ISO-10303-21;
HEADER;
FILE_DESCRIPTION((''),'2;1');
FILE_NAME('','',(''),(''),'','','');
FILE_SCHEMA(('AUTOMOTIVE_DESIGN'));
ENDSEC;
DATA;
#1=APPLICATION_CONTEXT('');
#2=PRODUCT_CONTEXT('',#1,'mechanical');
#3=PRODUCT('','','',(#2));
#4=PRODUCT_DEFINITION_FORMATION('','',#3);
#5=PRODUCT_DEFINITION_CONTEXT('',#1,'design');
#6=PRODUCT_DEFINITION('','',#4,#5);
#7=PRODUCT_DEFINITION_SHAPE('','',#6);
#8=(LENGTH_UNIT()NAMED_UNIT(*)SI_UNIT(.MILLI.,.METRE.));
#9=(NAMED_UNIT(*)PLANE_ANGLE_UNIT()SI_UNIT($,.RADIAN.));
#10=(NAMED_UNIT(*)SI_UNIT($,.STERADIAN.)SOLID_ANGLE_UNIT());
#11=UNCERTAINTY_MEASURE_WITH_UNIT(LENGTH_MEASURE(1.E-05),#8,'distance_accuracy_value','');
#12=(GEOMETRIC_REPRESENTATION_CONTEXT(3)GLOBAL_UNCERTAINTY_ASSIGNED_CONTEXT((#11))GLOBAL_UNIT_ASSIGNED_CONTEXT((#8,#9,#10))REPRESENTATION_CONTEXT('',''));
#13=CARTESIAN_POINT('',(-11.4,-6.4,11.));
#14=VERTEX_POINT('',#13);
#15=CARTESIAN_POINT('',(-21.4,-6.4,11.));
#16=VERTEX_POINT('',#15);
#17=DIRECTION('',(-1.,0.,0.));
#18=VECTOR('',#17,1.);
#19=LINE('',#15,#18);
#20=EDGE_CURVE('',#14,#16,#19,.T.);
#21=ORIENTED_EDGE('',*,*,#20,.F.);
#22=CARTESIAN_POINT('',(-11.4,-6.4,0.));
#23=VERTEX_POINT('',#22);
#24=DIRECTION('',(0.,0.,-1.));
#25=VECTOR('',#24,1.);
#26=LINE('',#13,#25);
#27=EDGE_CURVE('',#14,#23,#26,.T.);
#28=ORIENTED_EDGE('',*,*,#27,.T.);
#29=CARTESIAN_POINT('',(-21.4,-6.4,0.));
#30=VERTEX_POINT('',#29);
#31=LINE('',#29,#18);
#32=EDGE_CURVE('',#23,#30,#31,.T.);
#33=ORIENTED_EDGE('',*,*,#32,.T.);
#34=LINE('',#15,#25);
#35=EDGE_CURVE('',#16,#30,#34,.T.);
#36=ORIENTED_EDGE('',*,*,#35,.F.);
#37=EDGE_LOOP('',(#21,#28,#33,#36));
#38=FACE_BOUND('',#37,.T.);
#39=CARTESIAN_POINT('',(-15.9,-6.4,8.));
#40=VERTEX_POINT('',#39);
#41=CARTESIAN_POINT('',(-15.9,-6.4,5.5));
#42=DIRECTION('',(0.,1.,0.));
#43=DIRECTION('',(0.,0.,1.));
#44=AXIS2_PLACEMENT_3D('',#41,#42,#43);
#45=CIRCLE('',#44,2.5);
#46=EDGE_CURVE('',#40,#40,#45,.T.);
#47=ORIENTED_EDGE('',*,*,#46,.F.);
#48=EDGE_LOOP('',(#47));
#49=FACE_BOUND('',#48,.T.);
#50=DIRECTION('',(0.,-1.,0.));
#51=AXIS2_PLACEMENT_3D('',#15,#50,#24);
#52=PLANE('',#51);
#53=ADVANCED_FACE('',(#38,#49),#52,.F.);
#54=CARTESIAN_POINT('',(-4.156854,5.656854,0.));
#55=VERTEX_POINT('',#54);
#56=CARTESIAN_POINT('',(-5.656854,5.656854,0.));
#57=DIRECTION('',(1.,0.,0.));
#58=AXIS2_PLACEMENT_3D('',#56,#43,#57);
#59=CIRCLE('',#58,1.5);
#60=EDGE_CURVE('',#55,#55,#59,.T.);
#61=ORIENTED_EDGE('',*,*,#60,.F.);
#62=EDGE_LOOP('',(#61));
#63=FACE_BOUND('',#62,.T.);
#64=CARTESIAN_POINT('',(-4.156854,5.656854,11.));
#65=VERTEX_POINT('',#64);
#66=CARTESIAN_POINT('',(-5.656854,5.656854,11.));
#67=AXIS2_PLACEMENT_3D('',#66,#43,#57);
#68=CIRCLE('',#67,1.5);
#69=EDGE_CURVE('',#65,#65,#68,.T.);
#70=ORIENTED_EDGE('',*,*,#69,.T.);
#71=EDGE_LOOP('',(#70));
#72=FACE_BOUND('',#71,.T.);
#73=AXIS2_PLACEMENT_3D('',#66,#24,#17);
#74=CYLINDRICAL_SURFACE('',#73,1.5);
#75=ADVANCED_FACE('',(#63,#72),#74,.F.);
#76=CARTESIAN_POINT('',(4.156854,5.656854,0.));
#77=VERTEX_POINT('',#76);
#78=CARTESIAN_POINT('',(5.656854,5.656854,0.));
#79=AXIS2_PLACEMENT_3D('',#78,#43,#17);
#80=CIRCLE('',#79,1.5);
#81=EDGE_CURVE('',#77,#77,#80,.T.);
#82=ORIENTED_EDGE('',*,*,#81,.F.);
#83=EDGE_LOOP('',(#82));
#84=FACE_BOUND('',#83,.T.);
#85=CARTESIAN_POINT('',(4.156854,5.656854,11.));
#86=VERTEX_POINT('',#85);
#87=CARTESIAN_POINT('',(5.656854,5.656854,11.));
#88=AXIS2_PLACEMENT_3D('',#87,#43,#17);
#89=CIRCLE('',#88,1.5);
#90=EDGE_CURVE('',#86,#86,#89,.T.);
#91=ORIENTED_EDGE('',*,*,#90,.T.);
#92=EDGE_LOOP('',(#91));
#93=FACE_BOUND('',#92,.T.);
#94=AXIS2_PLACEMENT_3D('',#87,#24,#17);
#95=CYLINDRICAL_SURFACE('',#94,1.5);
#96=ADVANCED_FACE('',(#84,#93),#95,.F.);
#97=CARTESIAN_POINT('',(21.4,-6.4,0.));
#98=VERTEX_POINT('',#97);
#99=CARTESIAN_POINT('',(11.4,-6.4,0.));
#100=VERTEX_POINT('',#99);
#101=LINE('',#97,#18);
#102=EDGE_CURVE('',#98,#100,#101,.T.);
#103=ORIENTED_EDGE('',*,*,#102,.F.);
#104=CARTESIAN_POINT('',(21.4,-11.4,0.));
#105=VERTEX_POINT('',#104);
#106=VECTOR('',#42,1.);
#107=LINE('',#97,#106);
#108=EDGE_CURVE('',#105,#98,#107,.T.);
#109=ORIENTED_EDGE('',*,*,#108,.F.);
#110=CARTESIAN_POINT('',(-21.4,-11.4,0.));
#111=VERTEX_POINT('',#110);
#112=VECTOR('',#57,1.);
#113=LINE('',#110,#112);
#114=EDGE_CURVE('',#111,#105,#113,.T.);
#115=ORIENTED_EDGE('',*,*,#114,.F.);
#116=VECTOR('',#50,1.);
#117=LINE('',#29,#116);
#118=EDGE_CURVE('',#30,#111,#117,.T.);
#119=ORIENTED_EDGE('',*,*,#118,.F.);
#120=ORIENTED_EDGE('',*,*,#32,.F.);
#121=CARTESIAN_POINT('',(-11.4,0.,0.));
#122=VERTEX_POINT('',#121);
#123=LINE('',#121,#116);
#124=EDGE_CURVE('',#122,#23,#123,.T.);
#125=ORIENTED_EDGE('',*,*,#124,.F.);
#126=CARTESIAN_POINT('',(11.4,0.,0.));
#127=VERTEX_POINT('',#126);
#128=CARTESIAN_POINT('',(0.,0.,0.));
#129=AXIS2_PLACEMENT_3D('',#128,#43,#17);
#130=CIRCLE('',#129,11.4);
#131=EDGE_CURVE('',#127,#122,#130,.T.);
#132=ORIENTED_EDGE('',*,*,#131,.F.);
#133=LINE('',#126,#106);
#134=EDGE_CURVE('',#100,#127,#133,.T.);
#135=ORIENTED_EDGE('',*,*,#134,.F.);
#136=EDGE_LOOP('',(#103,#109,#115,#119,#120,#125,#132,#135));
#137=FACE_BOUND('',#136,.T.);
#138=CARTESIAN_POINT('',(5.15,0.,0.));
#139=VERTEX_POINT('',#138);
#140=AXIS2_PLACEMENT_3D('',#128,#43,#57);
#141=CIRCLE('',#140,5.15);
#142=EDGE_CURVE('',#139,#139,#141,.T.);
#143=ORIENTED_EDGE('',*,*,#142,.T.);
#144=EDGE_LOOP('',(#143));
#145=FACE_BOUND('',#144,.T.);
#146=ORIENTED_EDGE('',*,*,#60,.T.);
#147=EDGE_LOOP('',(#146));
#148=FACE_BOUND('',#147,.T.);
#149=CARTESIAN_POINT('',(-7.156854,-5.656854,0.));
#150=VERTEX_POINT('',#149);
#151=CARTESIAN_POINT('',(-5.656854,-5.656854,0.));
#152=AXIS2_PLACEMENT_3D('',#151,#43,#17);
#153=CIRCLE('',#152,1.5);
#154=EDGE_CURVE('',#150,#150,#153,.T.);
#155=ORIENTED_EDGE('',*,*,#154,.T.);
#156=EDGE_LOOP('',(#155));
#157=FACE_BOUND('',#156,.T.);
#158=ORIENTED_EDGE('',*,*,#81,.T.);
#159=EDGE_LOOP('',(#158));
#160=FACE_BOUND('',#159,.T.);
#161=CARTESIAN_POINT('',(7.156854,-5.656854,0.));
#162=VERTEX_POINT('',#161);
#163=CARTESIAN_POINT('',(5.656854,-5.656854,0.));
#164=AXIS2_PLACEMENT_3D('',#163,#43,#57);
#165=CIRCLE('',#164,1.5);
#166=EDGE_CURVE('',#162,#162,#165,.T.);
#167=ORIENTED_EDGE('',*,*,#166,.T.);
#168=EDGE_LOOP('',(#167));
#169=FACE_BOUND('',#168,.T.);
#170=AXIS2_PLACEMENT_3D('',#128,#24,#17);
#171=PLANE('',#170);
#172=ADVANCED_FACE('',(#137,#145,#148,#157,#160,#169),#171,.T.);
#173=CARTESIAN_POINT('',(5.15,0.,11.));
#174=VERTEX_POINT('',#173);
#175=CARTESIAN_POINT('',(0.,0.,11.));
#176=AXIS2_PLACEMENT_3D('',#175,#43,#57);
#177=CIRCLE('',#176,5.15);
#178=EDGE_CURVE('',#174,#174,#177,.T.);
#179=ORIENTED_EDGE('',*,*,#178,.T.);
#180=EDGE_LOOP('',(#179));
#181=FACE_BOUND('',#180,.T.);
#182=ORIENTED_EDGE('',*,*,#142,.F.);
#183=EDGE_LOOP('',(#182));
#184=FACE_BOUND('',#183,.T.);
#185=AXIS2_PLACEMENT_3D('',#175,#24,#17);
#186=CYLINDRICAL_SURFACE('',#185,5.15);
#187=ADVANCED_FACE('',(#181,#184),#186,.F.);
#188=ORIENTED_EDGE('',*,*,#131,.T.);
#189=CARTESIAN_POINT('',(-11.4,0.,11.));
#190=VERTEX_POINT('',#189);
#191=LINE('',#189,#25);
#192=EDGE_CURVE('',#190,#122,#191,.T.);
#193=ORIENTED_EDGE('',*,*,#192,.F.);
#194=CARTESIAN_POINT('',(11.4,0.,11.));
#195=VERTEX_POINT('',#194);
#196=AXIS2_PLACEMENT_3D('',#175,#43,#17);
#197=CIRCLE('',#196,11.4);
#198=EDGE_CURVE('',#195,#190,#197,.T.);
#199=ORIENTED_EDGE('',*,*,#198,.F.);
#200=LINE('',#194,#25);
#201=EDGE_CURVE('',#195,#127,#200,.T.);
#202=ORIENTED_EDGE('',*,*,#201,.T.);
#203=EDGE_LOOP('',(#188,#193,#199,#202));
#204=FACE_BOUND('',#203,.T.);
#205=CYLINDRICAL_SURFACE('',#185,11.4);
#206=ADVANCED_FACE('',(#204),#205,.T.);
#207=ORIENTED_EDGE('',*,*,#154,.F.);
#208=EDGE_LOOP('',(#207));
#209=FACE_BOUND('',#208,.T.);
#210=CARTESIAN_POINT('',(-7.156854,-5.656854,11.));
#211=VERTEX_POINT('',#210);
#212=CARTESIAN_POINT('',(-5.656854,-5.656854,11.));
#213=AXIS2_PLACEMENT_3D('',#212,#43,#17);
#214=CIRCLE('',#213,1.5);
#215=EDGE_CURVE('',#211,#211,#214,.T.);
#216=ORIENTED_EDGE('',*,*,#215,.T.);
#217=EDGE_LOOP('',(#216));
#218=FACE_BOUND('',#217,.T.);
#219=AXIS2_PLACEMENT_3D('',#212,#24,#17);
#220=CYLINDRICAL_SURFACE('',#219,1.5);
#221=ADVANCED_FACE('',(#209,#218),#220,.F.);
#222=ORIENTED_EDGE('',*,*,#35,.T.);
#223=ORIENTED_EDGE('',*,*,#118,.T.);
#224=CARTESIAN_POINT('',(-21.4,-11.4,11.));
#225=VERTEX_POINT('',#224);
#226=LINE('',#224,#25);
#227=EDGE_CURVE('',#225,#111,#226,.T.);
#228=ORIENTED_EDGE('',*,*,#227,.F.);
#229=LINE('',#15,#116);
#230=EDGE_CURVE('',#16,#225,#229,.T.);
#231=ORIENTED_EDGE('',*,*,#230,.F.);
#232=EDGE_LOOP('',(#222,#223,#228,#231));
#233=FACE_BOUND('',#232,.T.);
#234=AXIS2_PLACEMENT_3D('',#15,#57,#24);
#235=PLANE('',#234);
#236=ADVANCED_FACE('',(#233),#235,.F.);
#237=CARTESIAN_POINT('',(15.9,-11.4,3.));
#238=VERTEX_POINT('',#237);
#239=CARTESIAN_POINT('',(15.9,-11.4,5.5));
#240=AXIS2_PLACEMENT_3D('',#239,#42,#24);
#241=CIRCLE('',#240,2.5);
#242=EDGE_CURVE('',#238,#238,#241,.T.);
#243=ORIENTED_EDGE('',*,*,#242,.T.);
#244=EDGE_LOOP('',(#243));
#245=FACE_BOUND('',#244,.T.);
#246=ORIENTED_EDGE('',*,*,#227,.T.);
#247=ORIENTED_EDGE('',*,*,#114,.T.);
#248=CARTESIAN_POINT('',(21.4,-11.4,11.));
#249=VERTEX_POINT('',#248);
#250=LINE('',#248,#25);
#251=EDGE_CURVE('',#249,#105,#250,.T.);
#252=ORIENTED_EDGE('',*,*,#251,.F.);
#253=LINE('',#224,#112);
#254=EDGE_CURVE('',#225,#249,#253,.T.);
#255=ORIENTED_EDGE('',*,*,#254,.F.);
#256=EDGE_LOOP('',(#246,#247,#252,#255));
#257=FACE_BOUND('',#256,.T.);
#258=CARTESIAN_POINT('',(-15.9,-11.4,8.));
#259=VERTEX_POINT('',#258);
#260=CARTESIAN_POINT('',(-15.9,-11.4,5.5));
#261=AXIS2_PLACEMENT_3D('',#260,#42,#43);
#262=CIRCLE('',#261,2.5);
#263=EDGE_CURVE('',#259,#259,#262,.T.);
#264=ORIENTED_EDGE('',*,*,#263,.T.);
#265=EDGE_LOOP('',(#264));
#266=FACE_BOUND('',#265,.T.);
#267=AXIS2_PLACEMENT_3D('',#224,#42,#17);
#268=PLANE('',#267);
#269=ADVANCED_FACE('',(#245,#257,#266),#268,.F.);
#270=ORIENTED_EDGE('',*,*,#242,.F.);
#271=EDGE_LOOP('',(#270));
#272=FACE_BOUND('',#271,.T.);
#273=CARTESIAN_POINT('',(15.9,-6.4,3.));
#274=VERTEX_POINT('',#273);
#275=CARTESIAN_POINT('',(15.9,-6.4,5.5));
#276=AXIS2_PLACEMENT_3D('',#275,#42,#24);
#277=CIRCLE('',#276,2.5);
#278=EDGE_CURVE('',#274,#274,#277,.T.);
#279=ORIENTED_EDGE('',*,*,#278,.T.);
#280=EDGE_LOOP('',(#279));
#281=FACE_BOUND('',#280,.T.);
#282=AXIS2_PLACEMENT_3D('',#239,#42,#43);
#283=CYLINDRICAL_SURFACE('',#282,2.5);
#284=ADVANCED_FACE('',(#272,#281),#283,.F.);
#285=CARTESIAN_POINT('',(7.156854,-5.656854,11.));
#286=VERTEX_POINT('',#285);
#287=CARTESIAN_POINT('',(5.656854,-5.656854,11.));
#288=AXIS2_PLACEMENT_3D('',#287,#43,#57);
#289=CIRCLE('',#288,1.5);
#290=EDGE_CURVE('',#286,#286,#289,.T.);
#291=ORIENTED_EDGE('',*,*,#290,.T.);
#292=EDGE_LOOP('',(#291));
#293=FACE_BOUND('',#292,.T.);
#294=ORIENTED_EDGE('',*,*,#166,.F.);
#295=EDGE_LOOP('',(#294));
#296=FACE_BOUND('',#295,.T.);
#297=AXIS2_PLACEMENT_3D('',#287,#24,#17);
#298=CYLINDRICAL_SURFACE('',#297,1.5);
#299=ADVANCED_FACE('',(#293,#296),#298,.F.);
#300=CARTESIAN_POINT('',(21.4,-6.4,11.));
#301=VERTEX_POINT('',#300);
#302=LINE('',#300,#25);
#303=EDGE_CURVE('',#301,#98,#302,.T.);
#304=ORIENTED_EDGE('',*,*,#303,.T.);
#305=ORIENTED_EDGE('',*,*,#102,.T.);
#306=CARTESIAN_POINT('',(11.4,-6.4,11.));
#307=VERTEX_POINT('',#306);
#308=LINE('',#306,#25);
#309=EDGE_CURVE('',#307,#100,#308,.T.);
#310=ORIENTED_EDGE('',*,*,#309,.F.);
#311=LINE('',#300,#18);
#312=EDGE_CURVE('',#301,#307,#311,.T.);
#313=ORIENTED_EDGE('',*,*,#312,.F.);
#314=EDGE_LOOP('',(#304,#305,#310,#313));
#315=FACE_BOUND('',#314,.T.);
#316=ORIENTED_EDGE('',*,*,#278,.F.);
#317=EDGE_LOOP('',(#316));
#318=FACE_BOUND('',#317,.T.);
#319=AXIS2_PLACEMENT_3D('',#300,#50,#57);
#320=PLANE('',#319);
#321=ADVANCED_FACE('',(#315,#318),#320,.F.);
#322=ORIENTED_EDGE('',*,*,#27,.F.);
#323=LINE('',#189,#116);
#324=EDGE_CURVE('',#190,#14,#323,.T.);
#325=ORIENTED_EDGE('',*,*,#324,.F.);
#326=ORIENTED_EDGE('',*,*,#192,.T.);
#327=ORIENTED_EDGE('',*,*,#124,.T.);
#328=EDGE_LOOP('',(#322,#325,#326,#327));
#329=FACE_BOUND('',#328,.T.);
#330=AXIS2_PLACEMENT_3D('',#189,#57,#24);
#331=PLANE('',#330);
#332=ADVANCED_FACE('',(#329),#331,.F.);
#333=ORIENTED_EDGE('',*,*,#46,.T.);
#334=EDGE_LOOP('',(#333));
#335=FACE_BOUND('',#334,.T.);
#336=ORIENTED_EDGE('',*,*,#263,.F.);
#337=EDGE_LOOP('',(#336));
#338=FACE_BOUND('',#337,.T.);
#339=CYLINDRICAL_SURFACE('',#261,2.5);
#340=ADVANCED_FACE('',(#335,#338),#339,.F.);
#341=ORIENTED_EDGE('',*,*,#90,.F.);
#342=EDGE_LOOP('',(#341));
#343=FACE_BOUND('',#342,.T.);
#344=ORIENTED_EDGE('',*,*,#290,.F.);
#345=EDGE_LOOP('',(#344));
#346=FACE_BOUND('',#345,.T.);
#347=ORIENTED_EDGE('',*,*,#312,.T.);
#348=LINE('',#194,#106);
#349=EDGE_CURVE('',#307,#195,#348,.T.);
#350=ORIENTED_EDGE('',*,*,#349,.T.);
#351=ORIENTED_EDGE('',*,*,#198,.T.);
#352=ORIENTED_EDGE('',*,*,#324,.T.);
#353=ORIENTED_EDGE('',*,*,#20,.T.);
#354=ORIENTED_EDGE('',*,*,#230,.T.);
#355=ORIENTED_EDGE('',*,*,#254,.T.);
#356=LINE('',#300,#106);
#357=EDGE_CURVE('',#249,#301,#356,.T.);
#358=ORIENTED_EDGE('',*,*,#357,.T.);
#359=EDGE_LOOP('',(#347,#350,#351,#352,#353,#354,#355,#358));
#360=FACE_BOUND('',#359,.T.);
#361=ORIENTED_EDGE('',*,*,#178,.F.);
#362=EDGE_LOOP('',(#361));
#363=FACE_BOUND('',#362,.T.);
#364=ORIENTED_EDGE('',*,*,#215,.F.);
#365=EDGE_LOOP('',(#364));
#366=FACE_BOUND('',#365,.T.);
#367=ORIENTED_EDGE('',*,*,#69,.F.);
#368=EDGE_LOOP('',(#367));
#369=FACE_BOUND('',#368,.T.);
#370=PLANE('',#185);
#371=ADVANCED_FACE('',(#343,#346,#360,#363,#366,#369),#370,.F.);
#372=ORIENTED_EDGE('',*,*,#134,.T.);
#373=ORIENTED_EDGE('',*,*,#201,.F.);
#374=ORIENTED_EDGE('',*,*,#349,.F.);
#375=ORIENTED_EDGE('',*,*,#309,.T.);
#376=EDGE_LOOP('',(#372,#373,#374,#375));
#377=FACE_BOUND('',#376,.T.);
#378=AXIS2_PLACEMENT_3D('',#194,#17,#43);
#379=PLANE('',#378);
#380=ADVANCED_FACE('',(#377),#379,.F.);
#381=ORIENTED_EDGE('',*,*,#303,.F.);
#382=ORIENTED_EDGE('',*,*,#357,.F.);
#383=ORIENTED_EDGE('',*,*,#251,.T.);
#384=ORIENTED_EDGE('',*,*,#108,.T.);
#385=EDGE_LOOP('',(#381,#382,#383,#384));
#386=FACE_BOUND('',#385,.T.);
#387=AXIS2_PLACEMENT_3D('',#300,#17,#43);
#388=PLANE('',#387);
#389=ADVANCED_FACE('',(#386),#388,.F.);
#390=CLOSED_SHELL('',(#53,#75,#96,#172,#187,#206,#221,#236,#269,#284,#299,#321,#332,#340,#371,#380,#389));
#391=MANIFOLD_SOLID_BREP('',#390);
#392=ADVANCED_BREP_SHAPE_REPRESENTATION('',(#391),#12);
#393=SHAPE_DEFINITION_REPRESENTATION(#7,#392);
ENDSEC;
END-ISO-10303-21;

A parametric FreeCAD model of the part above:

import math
import FreeCAD as App
import Part
import Sketcher

V = App.Vector
Q = App.Units.Quantity

doc = App.newDocument("Part")
body = doc.addObject("PartDesign::Body", "Body")

sketch1 = body.newObject("Sketcher::SketchObject", "Sketch")
sketch1.AttachmentSupport = (doc.getObject("XY_Plane"), [""])
sketch1.MapMode = "FlatFace"
sketch1.addGeometry(Part.LineSegment(V(-11.4, -6.4, 0), V(-21.4, -6.4, 0)), False)
sketch1.addGeometry(Part.LineSegment(V(-21.4, -6.4, 0), V(-21.4, -11.4, 0)), False)
sketch1.addGeometry(Part.LineSegment(V(-21.4, -11.4, 0), V(21.4, -11.4, 0)), False)
sketch1.addGeometry(Part.LineSegment(V(21.4, -11.4, 0), V(21.4, -6.4, 0)), False)
sketch1.addGeometry(Part.LineSegment(V(21.4, -6.4, 0), V(11.4, -6.4, 0)), False)
sketch1.addGeometry(Part.LineSegment(V(11.4, -6.4, 0), V(11.4, 0, 0)), False)
sketch1.addGeometry(Part.ArcOfCircle(Part.Circle(V(0, 0, 0), V(0, 0, 1), 11.4), math.radians(0), math.radians(180)), False)
sketch1.addGeometry(Part.LineSegment(V(-11.4, 0, 0), V(-11.4, -6.4, 0)), False)
sketch1.addGeometry(Part.Circle(V(5.7, -5.7, 0), V(0, 0, 1), 1.5), False)
sketch1.addGeometry(Part.Circle(V(-5.7, -5.7, 0), V(0, 0, 1), 1.5), False)
sketch1.addGeometry(Part.Circle(V(5.7, 5.7, 0), V(0, 0, 1), 1.5), False)
sketch1.addGeometry(Part.Circle(V(0, 0, 0), V(0, 0, 1), 5.2), False)
sketch1.addGeometry(Part.Circle(V(-5.7, 5.7, 0), V(0, 0, 1), 1.5), False)
sketch1.addConstraint(Sketcher.Constraint("Coincident", 0, 2, 1, 1))
sketch1.addConstraint(Sketcher.Constraint("Coincident", 1, 2, 2, 1))
sketch1.addConstraint(Sketcher.Constraint("Coincident", 2, 2, 3, 1))
sketch1.addConstraint(Sketcher.Constraint("Coincident", 3, 2, 4, 1))
sketch1.addConstraint(Sketcher.Constraint("Coincident", 4, 2, 5, 1))
sketch1.addConstraint(Sketcher.Constraint("Tangent", 5, 2, 6, 1))
sketch1.addConstraint(Sketcher.Constraint("Tangent", 6, 2, 7, 1))
sketch1.addConstraint(Sketcher.Constraint("Coincident", 7, 2, 0, 1))
sketch1.addConstraint(Sketcher.Constraint("Horizontal", 0))
sketch1.addConstraint(Sketcher.Constraint("Vertical", 1))
sketch1.addConstraint(Sketcher.Constraint("Horizontal", 2))
sketch1.addConstraint(Sketcher.Constraint("Vertical", 3))
sketch1.addConstraint(Sketcher.Constraint("Horizontal", 4))
sketch1.addConstraint(Sketcher.Constraint("Vertical", 5))
sketch1.addConstraint(Sketcher.Constraint("Vertical", 7))
sketch1.addConstraint(Sketcher.Constraint("Coincident", 6, 3, -1, 1))
sketch1.addConstraint(Sketcher.Constraint("Coincident", 11, 3, -1, 1))
sketch1.addConstraint(Sketcher.Constraint("Equal", 8, 9))
sketch1.addConstraint(Sketcher.Constraint("Equal", 9, 10))
sketch1.addConstraint(Sketcher.Constraint("Equal", 10, 12))
sketch1.addConstraint(Sketcher.Constraint("Symmetric", 9, 3, 10, 3, -1, 1))
sketch1.addConstraint(Sketcher.Constraint("Symmetric", 8, 3, 12, 3, -1, 1))
sketch1.addConstraint(Sketcher.Constraint("Symmetric", 8, 3, 9, 3, -2))
sketch1.addConstraint(Sketcher.Constraint("Symmetric", 0, 2, 3, 2, -2))
sketch1.addConstraint(Sketcher.Constraint("Diameter", 8, Q("3 mm")))
sketch1.addConstraint(Sketcher.Constraint("Diameter", 11, Q("10.3 mm")))
sketch1.addConstraint(Sketcher.Constraint("Radius", 6, Q("11.4 mm")))
sketch1.addConstraint(Sketcher.Constraint("DistanceX", 0, 2, 0, 1, Q("10 mm")))
sketch1.addConstraint(Sketcher.Constraint("DistanceY", 1, 2, 1, 1, Q("5 mm")))
sketch1.addConstraint(Sketcher.Constraint("DistanceY", 5, 1, 5, 2, Q("6.4 mm")))
sketch1.addConstraint(Sketcher.Constraint("DistanceX", 9, 3, 8, 3, Q("11.313708 mm")))
sketch1.addConstraint(Sketcher.Constraint("DistanceY", 8, 3, 10, 3, Q("11.313708 mm")))
pad1 = body.newObject("PartDesign::Pad", "Pad")
pad1.Profile = sketch1
pad1.Length = 11

sketch2 = body.newObject("Sketcher::SketchObject", "Sketch001")
sketch2.AttachmentSupport = (doc.getObject("XZ_Plane"), [""])
sketch2.MapMode = "FlatFace"
sketch2.AttachmentOffset = App.Placement(V(0, 0, 6.4), App.Rotation())
sketch2.addGeometry(Part.Circle(V(-15.9, 5.5, 0), V(0, 0, 1), 2.5), False)
sketch2.addGeometry(Part.Circle(V(15.9, 5.5, 0), V(0, 0, 1), 2.5), False)
sketch2.addConstraint(Sketcher.Constraint("Equal", 0, 1))
sketch2.addConstraint(Sketcher.Constraint("Symmetric", 0, 3, 1, 3, -2))
sketch2.addConstraint(Sketcher.Constraint("Diameter", 0, Q("5 mm")))
sketch2.addConstraint(Sketcher.Constraint("DistanceX", 0, 3, -1, 1, Q("15.9 mm")))
sketch2.addConstraint(Sketcher.Constraint("DistanceY", -1, 1, 0, 3, Q("5.5 mm")))
pocket1 = body.newObject("PartDesign::Pocket", "Pocket")
pocket1.Profile = sketch2
pocket1.Type = "ThroughAll"
pocket1.Reversed = True

doc.recompute()
